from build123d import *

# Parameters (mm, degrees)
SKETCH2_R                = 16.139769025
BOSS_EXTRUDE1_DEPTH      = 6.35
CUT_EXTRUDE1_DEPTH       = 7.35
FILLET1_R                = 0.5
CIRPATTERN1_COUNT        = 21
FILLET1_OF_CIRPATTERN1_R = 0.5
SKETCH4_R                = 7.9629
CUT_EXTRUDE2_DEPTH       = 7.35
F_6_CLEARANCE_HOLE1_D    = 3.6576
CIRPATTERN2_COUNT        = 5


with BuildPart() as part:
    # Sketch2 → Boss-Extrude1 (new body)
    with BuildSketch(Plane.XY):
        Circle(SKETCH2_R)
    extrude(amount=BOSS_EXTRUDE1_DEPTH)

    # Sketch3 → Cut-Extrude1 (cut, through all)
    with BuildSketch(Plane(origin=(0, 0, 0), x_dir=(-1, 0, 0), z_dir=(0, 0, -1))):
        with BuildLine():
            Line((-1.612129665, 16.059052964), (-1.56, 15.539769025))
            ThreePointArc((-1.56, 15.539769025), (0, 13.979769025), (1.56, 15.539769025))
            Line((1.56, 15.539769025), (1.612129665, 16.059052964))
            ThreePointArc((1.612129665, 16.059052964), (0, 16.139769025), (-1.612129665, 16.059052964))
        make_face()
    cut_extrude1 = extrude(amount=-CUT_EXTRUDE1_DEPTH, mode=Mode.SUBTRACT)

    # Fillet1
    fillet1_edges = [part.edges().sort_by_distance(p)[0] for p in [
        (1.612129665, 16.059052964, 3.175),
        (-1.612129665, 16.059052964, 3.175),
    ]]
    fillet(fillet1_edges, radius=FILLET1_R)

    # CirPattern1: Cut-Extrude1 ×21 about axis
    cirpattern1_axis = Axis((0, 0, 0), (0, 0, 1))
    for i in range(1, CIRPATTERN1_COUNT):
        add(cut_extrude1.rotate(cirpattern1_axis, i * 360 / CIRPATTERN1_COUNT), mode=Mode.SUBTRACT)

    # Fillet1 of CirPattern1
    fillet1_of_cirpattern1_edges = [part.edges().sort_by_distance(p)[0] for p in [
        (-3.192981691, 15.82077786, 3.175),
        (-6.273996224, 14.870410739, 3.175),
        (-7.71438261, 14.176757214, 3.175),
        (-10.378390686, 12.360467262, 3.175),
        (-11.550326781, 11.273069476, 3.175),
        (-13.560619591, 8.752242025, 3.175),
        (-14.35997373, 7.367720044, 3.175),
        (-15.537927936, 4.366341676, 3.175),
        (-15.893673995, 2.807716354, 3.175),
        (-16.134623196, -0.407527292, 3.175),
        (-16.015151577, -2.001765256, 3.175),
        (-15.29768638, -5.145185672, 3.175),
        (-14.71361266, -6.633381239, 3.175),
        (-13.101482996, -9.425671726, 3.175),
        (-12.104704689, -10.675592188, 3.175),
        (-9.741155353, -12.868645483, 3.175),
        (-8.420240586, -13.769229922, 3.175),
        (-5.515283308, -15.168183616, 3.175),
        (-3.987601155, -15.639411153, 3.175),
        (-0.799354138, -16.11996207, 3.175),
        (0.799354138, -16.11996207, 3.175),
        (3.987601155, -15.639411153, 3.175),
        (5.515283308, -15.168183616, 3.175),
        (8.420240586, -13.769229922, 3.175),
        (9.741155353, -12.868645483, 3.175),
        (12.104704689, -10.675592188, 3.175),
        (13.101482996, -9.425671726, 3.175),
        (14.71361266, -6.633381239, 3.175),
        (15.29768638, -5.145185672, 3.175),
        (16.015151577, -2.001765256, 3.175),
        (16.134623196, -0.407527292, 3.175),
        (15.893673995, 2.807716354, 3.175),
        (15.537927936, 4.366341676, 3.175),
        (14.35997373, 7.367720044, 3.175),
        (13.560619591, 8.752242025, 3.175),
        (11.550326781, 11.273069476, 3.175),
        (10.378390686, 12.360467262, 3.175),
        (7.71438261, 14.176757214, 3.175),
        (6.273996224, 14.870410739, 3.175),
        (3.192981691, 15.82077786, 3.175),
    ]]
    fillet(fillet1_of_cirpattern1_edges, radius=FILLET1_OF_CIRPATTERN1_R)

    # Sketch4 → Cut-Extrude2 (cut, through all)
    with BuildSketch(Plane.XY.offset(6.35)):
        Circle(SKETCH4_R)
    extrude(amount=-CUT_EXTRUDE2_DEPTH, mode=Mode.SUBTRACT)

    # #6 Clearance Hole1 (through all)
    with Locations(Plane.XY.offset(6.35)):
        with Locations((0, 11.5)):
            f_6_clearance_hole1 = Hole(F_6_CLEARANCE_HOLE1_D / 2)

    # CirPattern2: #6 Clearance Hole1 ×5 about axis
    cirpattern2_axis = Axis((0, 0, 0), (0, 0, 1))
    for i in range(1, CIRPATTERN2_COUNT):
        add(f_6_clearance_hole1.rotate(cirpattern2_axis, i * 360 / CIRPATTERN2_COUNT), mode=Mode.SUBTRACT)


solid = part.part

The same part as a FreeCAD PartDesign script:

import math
import FreeCAD as App
import Part
import Sketcher

V = App.Vector
Q = App.Units.Quantity


def edges_at(feature, points):
    """Names of the edges that pass closest to the given points."""
    edges = feature.Shape.Edges
    near = lambda p: min(range(len(edges)), key=lambda i: edges[i].distToShape(Part.Vertex(*p))[0])
    return sorted({f"Edge{near(p) + 1}" for p in points})

doc = App.newDocument("Part")
body = doc.addObject("PartDesign::Body", "Body")

# Sketch on XY plane
sketch1 = doc.addObject("Sketcher::SketchObject", "Sketch")
body.addObject(sketch1)
sketch1.AttachmentSupport = (doc.XY_Plane, [""])
sketch1.MapMode = "FlatFace"
sketch1.addGeometry(Part.Circle(V(0, 0, 0), V(0, 0, 1), 16.139769), False)
sketch1.addConstraint([
    Sketcher.Constraint("Coincident", 0, 3, -1, 1),
    Sketcher.Constraint("Diameter", 0, Q("32.279538 mm")),
])
pad1 = doc.addObject("PartDesign::Pad", "Pad")
body.addObject(pad1)
pad1.Profile = sketch1
pad1.Length = Q("0.25 in")

# Sketch on XY plane
sketch2 = doc.addObject("Sketcher::SketchObject", "Sketch001")
body.addObject(sketch2)
sketch2.AttachmentSupport = (doc.XY_Plane, [""])
sketch2.MapMode = "FlatFace"
sketch2.addGeometry([
    Part.LineSegment(V(1.61213, 16.059053, 0), V(1.56, 15.539769, 0)),
    Part.ArcOfCircle(Part.Circle(V(0, 15.539769, 0), V(0, 0, 1), 1.56), math.radians(180), math.radians(360)),
    Part.LineSegment(V(-1.56, 15.539769, 0), V(-1.61213, 16.059053, 0)),
    Part.ArcOfCircle(Part.Circle(V(0, 0, 0), V(0, 0, 1), 16.139769), math.radians(84.26742), math.radians(95.73258)),
], False)
sketch2.addConstraint([
    Sketcher.Constraint("Coincident", 0, 2, 1, 2),
    Sketcher.Constraint("Coincident", 1, 1, 2, 1),
    Sketcher.Constraint("Coincident", 2, 2, 3, 2),
    Sketcher.Constraint("Coincident", 3, 1, 0, 1),
    Sketcher.Constraint("Coincident", 3, 3, -1, 1),
    Sketcher.Constraint("Symmetric", 0, 2, 1, 1, -2),
    Sketcher.Constraint("Horizontal", 1, 3, 0, 2),
    Sketcher.Constraint("Horizontal", 2, 2, 3, 1),
    Sketcher.Constraint("Radius", 1, Q("1.56 mm")),
    Sketcher.Constraint("Radius", 3, Q("16.139769 mm")),
    Sketcher.Constraint("DistanceY", -1, 1, 1, 3, Q("15.539769 mm")),
    Sketcher.Constraint("DistanceX", 2, 2, -1, 1, Q("1.61213 mm")),
])
pocket1 = doc.addObject("PartDesign::Pocket", "Pocket")
body.addObject(pocket1)
pocket1.Profile = sketch2
pocket1.Type = "ThroughAll"
pocket1.Reversed = True
doc.recompute()

fillet = doc.addObject("PartDesign::Fillet", "Fillet")
body.addObject(fillet)
fillet.Base = (pocket1, edges_at(pocket1, [(1.612, 16.059, 3.175), (-1.612, 16.059, 3.175)]))
fillet.Radius = 0.5
doc.recompute()

polarpattern = doc.addObject("PartDesign::PolarPattern", "PolarPattern")
body.addObject(polarpattern)
polarpattern.Originals = [pocket1]
polarpattern.Axis = (doc.Z_Axis, [""])
polarpattern.Angle = 360
polarpattern.Occurrences = 21
body.Tip = polarpattern
doc.recompute()

fillet2 = doc.addObject("PartDesign::Fillet", "Fillet001")
body.addObject(fillet2)
fillet2.Base = (polarpattern, edges_at(polarpattern, [
    (-3.193, 15.821, 3.175),
    (-6.274, 14.87, 3.175),
    (-7.714, 14.177, 3.175),
    (-10.378, 12.36, 3.175),
    (-11.55, 11.273, 3.175),
    (-13.561, 8.752, 3.175),
    (-14.36, 7.368, 3.175),
    (-15.538, 4.366, 3.175),
    (-15.894, 2.808, 3.175),
    (-16.135, -0.408, 3.175),
    (-16.015, -2.002, 3.175),
    (-15.298, -5.145, 3.175),
    (-14.714, -6.633, 3.175),
    (-13.101, -9.426, 3.175),
    (-12.105, -10.676, 3.175),
    (-9.741, -12.869, 3.175),
    (-8.42, -13.769, 3.175),
    (-5.515, -15.168, 3.175),
    (-3.988, -15.639, 3.175),
    (-0.799, -16.12, 3.175),
    (0.799, -16.12, 3.175),
    (3.988, -15.639, 3.175),
    (5.515, -15.168, 3.175),
    (8.42, -13.769, 3.175),
    (9.741, -12.869, 3.175),
    (12.105, -10.676, 3.175),
    (13.101, -9.426, 3.175),
    (14.714, -6.633, 3.175),
    (15.298, -5.145, 3.175),
    (16.015, -2.002, 3.175),
    (16.135, -0.408, 3.175),
    (15.894, 2.808, 3.175),
    (15.538, 4.366, 3.175),
    (14.36, 7.368, 3.175),
    (13.561, 8.752, 3.175),
    (11.55, 11.273, 3.175),
    (10.378, 12.36, 3.175),
    (7.714, 14.177, 3.175),
    (6.274, 14.87, 3.175),
    (3.193, 15.821, 3.175),
]))
fillet2.Radius = 0.5

# Sketch on XY plane
sketch3 = doc.addObject("Sketcher::SketchObject", "Sketch002")
body.addObject(sketch3)
sketch3.AttachmentSupport = (doc.XY_Plane, [""])
sketch3.MapMode = "FlatFace"
sketch3.AttachmentOffset = App.Placement(V(0, 0, 0.25 * 25.4), App.Rotation())
sketch3.addGeometry(Part.Circle(V(0, 0, 0), V(0, 0, 1), 7.9629), False)
sketch3.addConstraint([
    Sketcher.Constraint("Coincident", 0, 3, -1, 1),
    Sketcher.Constraint("Diameter", 0, Q("0.627 in")),
])
pocket2 = doc.addObject("PartDesign::Pocket", "Pocket001")
body.addObject(pocket2)
pocket2.Profile = sketch3
pocket2.Type = "ThroughAll"

# Sketch on XY plane
sketch4 = doc.addObject("Sketcher::SketchObject", "Sketch003")
body.addObject(sketch4)
sketch4.AttachmentSupport = (doc.XY_Plane, [""])
sketch4.MapMode = "FlatFace"
sketch4.AttachmentOffset = App.Placement(V(0, 0, 0.25 * 25.4), App.Rotation())
sketch4.addGeometry(Part.Circle(V(0, 11.5, 0), V(0, 0, 1), 1.8288), False)
sketch4.addConstraint([
    Sketcher.Constraint("PointOnObject", 0, 3, -2),
    Sketcher.Constraint("Diameter", 0, Q("0.144 in")),
    Sketcher.Constraint("DistanceY", -1, 1, 0, 3, Q("11.5 mm")),
])
doc.recompute()
hole = doc.addObject("PartDesign::Hole", "Hole")
body.addObject(hole)
hole.Profile = sketch4
hole.ThreadType = "None"
hole.Diameter = Q("0.144 in")
hole.DepthType = "ThroughAll"
doc.recompute()

polarpattern2 = doc.addObject("PartDesign::PolarPattern", "PolarPattern001")
body.addObject(polarpattern2)
polarpattern2.Originals = [hole]
polarpattern2.Axis = (doc.Z_Axis, [""])
polarpattern2.Angle = 360
polarpattern2.Occurrences = 5
body.Tip = polarpattern2

doc.recompute()
